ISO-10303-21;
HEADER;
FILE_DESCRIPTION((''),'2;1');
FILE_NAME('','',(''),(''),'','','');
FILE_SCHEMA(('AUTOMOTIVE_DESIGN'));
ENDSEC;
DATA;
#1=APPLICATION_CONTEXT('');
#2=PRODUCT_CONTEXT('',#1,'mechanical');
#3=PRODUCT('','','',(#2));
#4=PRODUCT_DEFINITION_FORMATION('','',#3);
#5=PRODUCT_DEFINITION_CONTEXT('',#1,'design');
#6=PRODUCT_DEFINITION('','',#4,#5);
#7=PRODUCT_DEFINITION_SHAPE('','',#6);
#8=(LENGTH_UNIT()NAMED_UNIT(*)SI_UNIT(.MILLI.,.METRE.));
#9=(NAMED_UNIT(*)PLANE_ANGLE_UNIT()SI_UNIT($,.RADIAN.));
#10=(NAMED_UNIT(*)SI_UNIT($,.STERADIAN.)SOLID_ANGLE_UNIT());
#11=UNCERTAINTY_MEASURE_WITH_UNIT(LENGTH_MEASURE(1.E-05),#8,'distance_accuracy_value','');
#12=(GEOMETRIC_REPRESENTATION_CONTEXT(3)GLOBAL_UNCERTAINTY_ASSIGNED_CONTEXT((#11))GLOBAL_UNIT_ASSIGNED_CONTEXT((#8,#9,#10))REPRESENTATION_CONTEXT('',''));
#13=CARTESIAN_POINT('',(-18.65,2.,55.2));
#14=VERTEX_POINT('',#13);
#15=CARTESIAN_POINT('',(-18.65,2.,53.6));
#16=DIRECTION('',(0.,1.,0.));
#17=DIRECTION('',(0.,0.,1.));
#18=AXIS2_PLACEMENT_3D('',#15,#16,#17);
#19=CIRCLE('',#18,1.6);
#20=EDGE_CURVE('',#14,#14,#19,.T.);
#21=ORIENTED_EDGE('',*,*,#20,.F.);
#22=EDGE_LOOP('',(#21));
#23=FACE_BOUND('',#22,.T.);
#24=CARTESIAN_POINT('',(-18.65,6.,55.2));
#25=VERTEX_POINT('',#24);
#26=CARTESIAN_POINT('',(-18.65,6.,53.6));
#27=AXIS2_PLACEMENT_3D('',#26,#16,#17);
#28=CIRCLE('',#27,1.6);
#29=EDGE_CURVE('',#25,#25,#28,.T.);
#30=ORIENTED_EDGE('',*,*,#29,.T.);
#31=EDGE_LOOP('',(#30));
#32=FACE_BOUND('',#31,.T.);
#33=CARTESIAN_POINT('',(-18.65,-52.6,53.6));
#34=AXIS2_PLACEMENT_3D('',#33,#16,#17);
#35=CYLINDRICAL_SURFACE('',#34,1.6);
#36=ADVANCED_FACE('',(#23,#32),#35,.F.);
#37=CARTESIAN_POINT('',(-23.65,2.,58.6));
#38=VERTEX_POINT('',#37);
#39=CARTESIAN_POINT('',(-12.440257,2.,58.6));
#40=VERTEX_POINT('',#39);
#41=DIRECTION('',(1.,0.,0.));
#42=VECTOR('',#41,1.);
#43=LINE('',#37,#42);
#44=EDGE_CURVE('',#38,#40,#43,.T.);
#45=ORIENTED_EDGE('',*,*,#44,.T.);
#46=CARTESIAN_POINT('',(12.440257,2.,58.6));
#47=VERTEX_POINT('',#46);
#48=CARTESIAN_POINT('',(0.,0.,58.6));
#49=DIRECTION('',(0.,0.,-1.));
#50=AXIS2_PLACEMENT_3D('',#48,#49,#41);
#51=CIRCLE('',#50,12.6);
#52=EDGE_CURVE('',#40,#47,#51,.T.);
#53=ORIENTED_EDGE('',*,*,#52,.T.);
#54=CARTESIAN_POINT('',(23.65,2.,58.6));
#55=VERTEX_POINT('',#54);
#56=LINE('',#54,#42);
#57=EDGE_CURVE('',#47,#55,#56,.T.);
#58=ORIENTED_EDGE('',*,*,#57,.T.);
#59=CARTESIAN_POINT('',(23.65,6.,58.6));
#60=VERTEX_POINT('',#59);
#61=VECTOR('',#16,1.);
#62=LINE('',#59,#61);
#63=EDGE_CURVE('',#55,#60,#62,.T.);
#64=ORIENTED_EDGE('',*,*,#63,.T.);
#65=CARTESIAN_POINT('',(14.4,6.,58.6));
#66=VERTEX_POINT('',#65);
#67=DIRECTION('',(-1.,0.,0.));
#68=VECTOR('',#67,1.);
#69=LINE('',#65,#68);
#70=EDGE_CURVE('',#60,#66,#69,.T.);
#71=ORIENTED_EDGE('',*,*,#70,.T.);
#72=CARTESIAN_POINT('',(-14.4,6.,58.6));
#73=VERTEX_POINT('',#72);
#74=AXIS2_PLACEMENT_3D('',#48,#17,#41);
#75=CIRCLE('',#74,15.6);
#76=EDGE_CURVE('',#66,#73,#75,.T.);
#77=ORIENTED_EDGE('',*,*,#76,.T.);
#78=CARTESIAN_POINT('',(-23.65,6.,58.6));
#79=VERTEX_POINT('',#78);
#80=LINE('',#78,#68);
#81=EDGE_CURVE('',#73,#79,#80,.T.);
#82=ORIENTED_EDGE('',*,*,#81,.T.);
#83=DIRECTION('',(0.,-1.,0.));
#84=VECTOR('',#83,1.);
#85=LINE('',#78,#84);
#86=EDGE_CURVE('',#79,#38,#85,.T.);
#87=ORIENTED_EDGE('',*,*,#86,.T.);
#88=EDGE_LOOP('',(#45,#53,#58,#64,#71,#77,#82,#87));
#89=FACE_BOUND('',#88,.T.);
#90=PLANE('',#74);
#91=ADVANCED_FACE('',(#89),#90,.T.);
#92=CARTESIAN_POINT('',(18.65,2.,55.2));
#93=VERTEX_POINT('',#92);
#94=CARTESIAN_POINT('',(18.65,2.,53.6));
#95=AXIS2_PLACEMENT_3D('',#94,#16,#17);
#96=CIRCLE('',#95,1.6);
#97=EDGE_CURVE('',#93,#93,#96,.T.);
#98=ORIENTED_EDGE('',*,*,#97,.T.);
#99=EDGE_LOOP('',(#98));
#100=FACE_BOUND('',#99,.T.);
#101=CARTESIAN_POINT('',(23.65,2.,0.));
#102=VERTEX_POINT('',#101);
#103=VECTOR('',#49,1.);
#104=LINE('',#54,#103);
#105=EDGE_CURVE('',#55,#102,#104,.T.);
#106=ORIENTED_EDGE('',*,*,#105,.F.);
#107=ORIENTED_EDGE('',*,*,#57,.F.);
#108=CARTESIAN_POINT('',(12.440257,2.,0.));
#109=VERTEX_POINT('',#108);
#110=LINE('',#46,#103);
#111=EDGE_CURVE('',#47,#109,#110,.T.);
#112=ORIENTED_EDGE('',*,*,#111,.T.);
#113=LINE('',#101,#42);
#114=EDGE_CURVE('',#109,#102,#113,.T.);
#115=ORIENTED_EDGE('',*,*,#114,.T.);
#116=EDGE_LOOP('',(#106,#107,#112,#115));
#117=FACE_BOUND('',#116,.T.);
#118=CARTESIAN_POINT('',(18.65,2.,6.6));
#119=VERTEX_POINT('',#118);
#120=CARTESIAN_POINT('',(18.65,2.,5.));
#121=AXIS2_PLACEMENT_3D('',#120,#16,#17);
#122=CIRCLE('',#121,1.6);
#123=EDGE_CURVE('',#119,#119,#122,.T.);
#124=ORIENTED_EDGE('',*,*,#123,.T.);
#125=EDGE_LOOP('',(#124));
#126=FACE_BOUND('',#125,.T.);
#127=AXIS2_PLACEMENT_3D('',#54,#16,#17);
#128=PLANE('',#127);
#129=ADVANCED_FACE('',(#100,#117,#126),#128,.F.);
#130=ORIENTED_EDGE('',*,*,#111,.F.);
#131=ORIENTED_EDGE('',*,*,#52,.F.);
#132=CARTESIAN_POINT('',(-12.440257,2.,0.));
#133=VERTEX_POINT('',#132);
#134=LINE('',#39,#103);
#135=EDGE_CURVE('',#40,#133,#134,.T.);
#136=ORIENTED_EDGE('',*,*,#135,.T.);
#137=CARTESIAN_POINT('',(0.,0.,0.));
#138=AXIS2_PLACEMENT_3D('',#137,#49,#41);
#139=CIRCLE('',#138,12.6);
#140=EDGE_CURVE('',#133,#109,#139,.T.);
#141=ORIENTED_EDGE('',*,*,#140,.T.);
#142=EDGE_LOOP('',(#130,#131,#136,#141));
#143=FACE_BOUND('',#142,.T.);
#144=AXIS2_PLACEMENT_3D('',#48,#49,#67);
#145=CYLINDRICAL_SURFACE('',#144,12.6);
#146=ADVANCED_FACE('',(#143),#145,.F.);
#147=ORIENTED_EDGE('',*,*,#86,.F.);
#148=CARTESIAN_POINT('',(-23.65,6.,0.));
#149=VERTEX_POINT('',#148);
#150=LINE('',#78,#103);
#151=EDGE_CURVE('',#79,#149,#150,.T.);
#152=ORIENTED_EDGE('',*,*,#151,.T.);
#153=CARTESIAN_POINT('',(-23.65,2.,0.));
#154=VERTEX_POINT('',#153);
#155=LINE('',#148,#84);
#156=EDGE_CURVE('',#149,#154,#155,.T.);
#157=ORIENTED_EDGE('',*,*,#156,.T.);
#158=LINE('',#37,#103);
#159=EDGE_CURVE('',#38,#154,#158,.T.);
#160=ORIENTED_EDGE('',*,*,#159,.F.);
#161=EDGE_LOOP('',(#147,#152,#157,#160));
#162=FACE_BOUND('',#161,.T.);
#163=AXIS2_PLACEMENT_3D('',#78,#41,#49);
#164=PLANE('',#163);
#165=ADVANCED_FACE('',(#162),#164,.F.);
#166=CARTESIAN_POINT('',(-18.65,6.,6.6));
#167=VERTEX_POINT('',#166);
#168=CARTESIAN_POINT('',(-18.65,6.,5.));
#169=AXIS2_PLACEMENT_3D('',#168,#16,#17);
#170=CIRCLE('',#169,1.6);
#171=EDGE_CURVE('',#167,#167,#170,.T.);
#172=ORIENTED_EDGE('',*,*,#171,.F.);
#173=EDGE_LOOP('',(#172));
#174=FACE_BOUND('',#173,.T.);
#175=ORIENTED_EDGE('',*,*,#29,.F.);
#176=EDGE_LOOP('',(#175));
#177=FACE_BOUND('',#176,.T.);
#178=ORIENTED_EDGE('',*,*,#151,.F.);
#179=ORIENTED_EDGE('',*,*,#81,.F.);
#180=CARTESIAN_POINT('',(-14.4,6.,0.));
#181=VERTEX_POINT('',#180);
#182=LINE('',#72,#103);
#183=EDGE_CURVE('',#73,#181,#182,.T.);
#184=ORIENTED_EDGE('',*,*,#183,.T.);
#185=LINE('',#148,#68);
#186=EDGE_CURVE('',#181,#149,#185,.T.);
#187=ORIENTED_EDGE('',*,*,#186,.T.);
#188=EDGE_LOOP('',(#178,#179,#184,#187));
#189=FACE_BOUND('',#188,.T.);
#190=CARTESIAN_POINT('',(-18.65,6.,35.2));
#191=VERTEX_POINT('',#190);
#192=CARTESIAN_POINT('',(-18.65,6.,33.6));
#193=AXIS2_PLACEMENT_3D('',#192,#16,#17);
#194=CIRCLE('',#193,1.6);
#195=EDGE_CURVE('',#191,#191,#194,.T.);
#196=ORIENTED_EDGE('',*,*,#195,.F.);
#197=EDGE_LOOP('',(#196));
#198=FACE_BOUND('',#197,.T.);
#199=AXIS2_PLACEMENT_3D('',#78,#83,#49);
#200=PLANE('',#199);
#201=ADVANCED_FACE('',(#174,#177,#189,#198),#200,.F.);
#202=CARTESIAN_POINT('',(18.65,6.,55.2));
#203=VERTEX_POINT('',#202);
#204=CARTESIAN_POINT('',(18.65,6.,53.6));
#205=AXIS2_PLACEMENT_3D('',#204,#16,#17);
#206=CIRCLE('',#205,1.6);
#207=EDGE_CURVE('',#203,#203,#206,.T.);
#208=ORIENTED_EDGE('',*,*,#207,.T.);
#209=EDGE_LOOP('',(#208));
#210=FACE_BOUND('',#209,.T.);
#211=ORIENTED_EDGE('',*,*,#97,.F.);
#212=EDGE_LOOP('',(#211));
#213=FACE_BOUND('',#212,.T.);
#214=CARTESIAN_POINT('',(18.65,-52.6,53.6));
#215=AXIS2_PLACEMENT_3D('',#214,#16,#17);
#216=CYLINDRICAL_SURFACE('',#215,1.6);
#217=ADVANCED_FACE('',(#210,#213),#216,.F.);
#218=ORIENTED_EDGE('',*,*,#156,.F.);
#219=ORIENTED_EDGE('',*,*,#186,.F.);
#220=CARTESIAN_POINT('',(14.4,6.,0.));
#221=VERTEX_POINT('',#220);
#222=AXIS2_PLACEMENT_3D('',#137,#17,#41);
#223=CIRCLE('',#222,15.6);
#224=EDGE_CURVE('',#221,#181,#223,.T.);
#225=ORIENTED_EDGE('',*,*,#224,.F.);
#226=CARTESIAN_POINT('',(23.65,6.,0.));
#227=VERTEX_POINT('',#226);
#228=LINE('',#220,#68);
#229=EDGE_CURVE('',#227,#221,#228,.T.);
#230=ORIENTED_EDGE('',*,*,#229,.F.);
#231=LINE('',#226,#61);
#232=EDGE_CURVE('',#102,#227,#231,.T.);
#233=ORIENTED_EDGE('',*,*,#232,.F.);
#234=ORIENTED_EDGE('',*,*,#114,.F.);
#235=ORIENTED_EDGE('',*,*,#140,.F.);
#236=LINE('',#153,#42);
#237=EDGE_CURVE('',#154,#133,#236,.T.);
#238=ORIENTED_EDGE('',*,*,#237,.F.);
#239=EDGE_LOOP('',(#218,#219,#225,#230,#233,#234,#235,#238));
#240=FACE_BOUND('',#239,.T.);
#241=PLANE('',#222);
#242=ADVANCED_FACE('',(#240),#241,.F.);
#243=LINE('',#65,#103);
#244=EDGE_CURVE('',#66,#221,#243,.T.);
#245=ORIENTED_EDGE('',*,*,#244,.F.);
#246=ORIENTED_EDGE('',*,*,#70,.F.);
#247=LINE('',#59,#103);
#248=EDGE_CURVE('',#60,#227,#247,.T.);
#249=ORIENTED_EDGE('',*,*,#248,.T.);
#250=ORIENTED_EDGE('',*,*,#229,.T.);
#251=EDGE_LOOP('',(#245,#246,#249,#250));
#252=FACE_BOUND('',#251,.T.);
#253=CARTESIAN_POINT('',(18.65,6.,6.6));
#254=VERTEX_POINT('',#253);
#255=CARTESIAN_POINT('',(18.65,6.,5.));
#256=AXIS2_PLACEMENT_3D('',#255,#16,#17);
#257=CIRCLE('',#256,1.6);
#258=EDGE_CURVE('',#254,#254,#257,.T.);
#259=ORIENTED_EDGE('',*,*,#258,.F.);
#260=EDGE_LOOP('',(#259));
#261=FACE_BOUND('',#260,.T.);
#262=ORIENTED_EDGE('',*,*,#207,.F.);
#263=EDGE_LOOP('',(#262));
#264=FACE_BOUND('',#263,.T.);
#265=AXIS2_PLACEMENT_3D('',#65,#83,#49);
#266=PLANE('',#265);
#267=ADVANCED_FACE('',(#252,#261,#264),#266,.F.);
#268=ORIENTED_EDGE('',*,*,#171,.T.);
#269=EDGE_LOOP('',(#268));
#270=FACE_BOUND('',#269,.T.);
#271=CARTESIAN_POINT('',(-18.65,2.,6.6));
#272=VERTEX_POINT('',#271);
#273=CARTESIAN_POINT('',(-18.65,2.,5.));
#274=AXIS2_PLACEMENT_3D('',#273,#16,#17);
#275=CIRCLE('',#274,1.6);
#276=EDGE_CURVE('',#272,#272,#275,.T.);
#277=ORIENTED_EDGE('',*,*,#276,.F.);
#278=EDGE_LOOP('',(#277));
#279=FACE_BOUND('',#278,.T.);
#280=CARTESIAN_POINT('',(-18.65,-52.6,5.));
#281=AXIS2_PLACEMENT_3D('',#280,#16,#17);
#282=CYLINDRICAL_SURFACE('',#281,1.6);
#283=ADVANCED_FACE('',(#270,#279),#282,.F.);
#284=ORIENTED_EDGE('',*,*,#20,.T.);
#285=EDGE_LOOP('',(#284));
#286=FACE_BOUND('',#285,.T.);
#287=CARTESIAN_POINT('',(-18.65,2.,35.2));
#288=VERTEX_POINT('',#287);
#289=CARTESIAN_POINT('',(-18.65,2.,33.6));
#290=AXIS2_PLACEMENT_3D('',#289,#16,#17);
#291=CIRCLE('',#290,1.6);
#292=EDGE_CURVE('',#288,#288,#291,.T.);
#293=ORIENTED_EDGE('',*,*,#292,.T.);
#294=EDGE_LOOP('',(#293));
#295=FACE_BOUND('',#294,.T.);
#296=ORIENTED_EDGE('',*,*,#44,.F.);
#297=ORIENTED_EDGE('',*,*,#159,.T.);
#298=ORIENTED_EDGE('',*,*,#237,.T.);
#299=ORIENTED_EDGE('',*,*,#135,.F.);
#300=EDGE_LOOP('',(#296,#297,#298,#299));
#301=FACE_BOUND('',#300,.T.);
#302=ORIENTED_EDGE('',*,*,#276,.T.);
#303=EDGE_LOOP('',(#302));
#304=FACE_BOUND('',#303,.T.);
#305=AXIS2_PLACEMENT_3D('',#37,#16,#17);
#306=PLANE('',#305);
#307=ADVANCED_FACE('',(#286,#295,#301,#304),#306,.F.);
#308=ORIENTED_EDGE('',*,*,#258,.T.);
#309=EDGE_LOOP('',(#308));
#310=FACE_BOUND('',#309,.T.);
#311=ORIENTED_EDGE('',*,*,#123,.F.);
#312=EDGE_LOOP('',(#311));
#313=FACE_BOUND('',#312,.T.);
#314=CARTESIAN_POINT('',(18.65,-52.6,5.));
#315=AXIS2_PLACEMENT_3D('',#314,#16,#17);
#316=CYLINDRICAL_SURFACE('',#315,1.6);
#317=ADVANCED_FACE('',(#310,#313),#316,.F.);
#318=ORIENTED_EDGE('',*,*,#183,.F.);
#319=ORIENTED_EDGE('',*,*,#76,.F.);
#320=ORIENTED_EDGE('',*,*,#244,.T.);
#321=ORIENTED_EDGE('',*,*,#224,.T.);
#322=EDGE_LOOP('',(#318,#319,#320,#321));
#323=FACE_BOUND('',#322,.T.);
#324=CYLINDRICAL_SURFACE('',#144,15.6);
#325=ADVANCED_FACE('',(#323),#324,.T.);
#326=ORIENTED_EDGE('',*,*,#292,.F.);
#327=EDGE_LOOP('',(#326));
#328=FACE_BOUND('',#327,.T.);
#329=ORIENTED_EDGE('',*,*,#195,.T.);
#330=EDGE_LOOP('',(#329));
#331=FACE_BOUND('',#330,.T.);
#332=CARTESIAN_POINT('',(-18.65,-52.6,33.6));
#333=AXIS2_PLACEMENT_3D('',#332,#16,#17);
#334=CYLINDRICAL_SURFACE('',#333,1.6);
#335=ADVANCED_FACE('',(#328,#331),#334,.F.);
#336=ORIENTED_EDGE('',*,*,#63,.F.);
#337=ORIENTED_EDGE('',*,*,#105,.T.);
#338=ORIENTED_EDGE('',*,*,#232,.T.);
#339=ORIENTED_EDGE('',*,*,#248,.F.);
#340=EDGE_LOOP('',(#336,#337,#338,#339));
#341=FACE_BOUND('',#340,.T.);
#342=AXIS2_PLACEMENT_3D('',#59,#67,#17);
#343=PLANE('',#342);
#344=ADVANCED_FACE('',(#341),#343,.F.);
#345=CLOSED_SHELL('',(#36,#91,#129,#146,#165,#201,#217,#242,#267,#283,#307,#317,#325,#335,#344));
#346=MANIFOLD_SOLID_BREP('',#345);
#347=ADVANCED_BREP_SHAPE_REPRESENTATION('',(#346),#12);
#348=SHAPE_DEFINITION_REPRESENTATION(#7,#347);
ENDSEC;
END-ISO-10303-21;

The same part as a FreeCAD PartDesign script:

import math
import FreeCAD as App
import Part
import Sketcher
from FreeCAD import Vector

doc = App.newDocument("Part")
body = doc.addObject("PartDesign::Body", "Body")

sketch1 = doc.addObject("Sketcher::SketchObject", "Sketch")
body.addObject(sketch1)
sketch1.AttachmentSupport = (doc.XY_Plane, [""])
sketch1.MapMode = "FlatFace"
sketch1.addGeometry([
    Part.LineSegment(Vector(-14.4, 6, 0), Vector(-23.6, 6, 0)),
    Part.LineSegment(Vector(-23.6, 6, 0), Vector(-23.6, 2, 0)),
    Part.LineSegment(Vector(-23.6, 2, 0), Vector(-12.4, 2, 0)),
    Part.ArcOfCircle(Part.Circle(Vector(0, 0, 0), Vector(0, 0, 1), 12.6), math.radians(9), math.radians(171)),
    Part.LineSegment(Vector(12.4, 2, 0), Vector(23.6, 2, 0)),
    Part.LineSegment(Vector(23.6, 2, 0), Vector(23.6, 6, 0)),
    Part.LineSegment(Vector(23.6, 6, 0), Vector(14.4, 6, 0)),
    Part.ArcOfCircle(Part.Circle(Vector(0, 0, 0), Vector(0, 0, 1), 15.6), math.radians(23), math.radians(157)),
], False)
sketch1.addConstraint([
    Sketcher.Constraint("Coincident", 0, 2, 1, 1),
    Sketcher.Constraint("Coincident", 1, 2, 2, 1),
    Sketcher.Constraint("Coincident", 2, 2, 3, 2),
    Sketcher.Constraint("Coincident", 3, 1, 4, 1),
    Sketcher.Constraint("Coincident", 4, 2, 5, 1),
    Sketcher.Constraint("Coincident", 5, 2, 6, 1),
    Sketcher.Constraint("Coincident", 6, 2, 7, 1),
    Sketcher.Constraint("Coincident", 7, 2, 0, 1),
    Sketcher.Constraint("Horizontal", 0),
    Sketcher.Constraint("Vertical", 1),
    Sketcher.Constraint("Horizontal", 2),
    Sketcher.Constraint("Horizontal", 4),
    Sketcher.Constraint("Vertical", 5),
    Sketcher.Constraint("Horizontal", 6),
    Sketcher.Constraint("Coincident", 3, 3, -1, 1),
    Sketcher.Constraint("Coincident", 7, 3, -1, 1),
    Sketcher.Constraint("Symmetric", 1, 2, 4, 2, -2),
    Sketcher.Constraint("Horizontal", 0, 2, 5, 2),
    Sketcher.Constraint("Radius", 3, 12.6),
    Sketcher.Constraint("Radius", 7, 15.6),
    Sketcher.Constraint("DistanceY", 1, 2, 1, 1, 4.0),
    Sketcher.Constraint("DistanceY", -1, 1, 0, 2, 6.0),
    Sketcher.Constraint("DistanceX", 0, 2, 0, 1, 9.25),
])
pad1 = doc.addObject("PartDesign::Pad", "Pad")
body.addObject(pad1)
pad1.Profile = sketch1
pad1.Length = 58.6

sketch2 = doc.addObject("Sketcher::SketchObject", "Sketch001")
body.addObject(sketch2)
sketch2.AttachmentSupport = (doc.XZ_Plane, [""])
sketch2.MapMode = "FlatFace"
sketch2.AttachmentOffset = App.Placement(Vector(0, 0, -6), App.Rotation())
sketch2.addGeometry([
    Part.Circle(Vector(18.6, 5, 0), Vector(0, 0, 1), 1.6),
    Part.Circle(Vector(18.6, 53.6, 0), Vector(0, 0, 1), 1.6),
    Part.Circle(Vector(-18.6, 53.6, 0), Vector(0, 0, 1), 1.6),
    Part.Circle(Vector(-18.6, 5, 0), Vector(0, 0, 1), 1.6),
    Part.Circle(Vector(-18.6, 33.6, 0), Vector(0, 0, 1), 1.6),
], False)
sketch2.addConstraint([
    Sketcher.Constraint("Equal", 0, 1),
    Sketcher.Constraint("Equal", 1, 2),
    Sketcher.Constraint("Equal", 2, 3),
    Sketcher.Constraint("Equal", 3, 4),
    Sketcher.Constraint("Symmetric", 1, 3, 2, 3, -2),
    Sketcher.Constraint("Symmetric", 0, 3, 3, 3, -2),
    Sketcher.Constraint("Vertical", 0, 3, 1, 3),
    Sketcher.Constraint("Vertical", 3, 3, 4, 3),
    Sketcher.Constraint("Diameter", 0, 3.2),
    Sketcher.Constraint("DistanceY", -1, 1, 0, 3, 5.0),
    Sketcher.Constraint("DistanceY", 4, 3, 2, 3, 20.0),
    Sketcher.Constraint("DistanceY", -1, 1, 1, 3, 53.6),
    Sketcher.Constraint("DistanceX", 2, 3, 1, 3, 37.3),
])
pocket1 = doc.addObject("PartDesign::Pocket", "Pocket")
body.addObject(pocket1)
pocket1.Profile = sketch2
pocket1.Length = 58.6
pocket1.Reversed = True

doc.recompute()
